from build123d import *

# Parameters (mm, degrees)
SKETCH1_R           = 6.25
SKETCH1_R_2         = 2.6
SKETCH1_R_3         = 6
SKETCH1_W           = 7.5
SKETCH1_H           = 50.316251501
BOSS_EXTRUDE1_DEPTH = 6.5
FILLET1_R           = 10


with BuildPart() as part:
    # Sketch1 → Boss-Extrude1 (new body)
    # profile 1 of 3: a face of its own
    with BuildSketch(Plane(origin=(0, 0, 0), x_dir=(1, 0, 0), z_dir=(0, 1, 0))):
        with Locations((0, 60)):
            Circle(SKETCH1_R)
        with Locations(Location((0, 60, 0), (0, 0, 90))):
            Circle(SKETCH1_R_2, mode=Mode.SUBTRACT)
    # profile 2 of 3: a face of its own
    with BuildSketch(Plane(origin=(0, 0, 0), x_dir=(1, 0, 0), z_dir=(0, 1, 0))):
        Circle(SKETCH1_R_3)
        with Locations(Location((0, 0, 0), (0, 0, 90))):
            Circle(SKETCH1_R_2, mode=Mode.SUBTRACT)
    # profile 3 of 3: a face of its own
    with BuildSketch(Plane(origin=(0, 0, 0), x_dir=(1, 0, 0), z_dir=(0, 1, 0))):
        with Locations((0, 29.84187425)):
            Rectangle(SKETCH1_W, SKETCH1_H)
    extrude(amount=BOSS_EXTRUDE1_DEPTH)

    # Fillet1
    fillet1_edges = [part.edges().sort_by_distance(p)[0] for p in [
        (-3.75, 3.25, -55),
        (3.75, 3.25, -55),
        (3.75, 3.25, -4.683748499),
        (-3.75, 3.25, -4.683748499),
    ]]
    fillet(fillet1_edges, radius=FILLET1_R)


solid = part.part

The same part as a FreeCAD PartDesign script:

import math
import FreeCAD as App
import Part
import Sketcher

V = App.Vector


def edges_at(feature, points):
    """Names of the edges that pass closest to the given points."""
    edges = feature.Shape.Edges
    near = lambda p: min(range(len(edges)), key=lambda i: edges[i].distToShape(Part.Vertex(*p))[0])
    return sorted({f"Edge{near(p) + 1}" for p in points})

doc = App.newDocument("Part")
body = doc.addObject("PartDesign::Body", "Body")

sketch1 = body.newObject("Sketcher::SketchObject", "Sketch")
sketch1.AttachmentSupport = (doc.getObject("XZ_Plane"), [""])
sketch1.MapMode = "FlatFace"
sketch1.addGeometry(Part.ArcOfCircle(Part.Circle(V(0, -60, 0), V(0, 0, 1), 6.2), math.radians(127), math.radians(413)), False)
sketch1.addGeometry(Part.LineSegment(V(-3.8, -55, 0), V(-3.8, -4.7, 0)), False)
sketch1.addGeometry(Part.ArcOfCircle(Part.Circle(V(0, 0, 0), V(0, 0, 1), 6), math.radians(-51), math.radians(231)), False)
sketch1.addGeometry(Part.LineSegment(V(3.8, -4.7, 0), V(3.8, -55, 0)), False)
sketch1.addGeometry(Part.Circle(V(0, -60, 0), V(0, 0, 1), 2.6), False)
sketch1.addGeometry(Part.Circle(V(0, 0, 0), V(0, 0, 1), 2.6), False)
sketch1.addConstraint(Sketcher.Constraint("Coincident", 0, 1, 1, 1))
sketch1.addConstraint(Sketcher.Constraint("Coincident", 1, 2, 2, 2))
sketch1.addConstraint(Sketcher.Constraint("Coincident", 2, 1, 3, 1))
sketch1.addConstraint(Sketcher.Constraint("Coincident", 3, 2, 0, 2))
sketch1.addConstraint(Sketcher.Constraint("Vertical", 1))
sketch1.addConstraint(Sketcher.Constraint("Vertical", 3))
sketch1.addConstraint(Sketcher.Constraint("Coincident", 2, 3, -1, 1))
sketch1.addConstraint(Sketcher.Constraint("Coincident", 5, 3, -1, 1))
sketch1.addConstraint(Sketcher.Constraint("Coincident", 4, 3, 0, 3))
sketch1.addConstraint(Sketcher.Constraint("Equal", 4, 5))
sketch1.addConstraint(Sketcher.Constraint("Symmetric", 0, 1, 3, 2, -2))
sketch1.addConstraint(Sketcher.Constraint("Radius", 2, 6.0))
sketch1.addConstraint(Sketcher.Constraint("Diameter", 4, 5.2))
sketch1.addConstraint(Sketcher.Constraint("Radius", 0, 6.25))
sketch1.addConstraint(Sketcher.Constraint("DistanceY", 0, 3, -1, 1, 60.0))
sketch1.addConstraint(Sketcher.Constraint("DistanceY", 0, 1, -1, 1, 55.0))
pad1 = body.newObject("PartDesign::Pad", "Pad")
pad1.Profile = sketch1
pad1.Length = 6.5
pad1.Reversed = True
doc.recompute()

fillet = body.newObject("PartDesign::Fillet", "Fillet")
fillet.Base = (pad1, edges_at(pad1, [
    (-3.75, 3.25, -55),
    (3.75, 3.25, -55),
    (3.75, 3.25, -4.684),
    (-3.75, 3.25, -4.684),
]))
fillet.Radius = 10

doc.recompute()
